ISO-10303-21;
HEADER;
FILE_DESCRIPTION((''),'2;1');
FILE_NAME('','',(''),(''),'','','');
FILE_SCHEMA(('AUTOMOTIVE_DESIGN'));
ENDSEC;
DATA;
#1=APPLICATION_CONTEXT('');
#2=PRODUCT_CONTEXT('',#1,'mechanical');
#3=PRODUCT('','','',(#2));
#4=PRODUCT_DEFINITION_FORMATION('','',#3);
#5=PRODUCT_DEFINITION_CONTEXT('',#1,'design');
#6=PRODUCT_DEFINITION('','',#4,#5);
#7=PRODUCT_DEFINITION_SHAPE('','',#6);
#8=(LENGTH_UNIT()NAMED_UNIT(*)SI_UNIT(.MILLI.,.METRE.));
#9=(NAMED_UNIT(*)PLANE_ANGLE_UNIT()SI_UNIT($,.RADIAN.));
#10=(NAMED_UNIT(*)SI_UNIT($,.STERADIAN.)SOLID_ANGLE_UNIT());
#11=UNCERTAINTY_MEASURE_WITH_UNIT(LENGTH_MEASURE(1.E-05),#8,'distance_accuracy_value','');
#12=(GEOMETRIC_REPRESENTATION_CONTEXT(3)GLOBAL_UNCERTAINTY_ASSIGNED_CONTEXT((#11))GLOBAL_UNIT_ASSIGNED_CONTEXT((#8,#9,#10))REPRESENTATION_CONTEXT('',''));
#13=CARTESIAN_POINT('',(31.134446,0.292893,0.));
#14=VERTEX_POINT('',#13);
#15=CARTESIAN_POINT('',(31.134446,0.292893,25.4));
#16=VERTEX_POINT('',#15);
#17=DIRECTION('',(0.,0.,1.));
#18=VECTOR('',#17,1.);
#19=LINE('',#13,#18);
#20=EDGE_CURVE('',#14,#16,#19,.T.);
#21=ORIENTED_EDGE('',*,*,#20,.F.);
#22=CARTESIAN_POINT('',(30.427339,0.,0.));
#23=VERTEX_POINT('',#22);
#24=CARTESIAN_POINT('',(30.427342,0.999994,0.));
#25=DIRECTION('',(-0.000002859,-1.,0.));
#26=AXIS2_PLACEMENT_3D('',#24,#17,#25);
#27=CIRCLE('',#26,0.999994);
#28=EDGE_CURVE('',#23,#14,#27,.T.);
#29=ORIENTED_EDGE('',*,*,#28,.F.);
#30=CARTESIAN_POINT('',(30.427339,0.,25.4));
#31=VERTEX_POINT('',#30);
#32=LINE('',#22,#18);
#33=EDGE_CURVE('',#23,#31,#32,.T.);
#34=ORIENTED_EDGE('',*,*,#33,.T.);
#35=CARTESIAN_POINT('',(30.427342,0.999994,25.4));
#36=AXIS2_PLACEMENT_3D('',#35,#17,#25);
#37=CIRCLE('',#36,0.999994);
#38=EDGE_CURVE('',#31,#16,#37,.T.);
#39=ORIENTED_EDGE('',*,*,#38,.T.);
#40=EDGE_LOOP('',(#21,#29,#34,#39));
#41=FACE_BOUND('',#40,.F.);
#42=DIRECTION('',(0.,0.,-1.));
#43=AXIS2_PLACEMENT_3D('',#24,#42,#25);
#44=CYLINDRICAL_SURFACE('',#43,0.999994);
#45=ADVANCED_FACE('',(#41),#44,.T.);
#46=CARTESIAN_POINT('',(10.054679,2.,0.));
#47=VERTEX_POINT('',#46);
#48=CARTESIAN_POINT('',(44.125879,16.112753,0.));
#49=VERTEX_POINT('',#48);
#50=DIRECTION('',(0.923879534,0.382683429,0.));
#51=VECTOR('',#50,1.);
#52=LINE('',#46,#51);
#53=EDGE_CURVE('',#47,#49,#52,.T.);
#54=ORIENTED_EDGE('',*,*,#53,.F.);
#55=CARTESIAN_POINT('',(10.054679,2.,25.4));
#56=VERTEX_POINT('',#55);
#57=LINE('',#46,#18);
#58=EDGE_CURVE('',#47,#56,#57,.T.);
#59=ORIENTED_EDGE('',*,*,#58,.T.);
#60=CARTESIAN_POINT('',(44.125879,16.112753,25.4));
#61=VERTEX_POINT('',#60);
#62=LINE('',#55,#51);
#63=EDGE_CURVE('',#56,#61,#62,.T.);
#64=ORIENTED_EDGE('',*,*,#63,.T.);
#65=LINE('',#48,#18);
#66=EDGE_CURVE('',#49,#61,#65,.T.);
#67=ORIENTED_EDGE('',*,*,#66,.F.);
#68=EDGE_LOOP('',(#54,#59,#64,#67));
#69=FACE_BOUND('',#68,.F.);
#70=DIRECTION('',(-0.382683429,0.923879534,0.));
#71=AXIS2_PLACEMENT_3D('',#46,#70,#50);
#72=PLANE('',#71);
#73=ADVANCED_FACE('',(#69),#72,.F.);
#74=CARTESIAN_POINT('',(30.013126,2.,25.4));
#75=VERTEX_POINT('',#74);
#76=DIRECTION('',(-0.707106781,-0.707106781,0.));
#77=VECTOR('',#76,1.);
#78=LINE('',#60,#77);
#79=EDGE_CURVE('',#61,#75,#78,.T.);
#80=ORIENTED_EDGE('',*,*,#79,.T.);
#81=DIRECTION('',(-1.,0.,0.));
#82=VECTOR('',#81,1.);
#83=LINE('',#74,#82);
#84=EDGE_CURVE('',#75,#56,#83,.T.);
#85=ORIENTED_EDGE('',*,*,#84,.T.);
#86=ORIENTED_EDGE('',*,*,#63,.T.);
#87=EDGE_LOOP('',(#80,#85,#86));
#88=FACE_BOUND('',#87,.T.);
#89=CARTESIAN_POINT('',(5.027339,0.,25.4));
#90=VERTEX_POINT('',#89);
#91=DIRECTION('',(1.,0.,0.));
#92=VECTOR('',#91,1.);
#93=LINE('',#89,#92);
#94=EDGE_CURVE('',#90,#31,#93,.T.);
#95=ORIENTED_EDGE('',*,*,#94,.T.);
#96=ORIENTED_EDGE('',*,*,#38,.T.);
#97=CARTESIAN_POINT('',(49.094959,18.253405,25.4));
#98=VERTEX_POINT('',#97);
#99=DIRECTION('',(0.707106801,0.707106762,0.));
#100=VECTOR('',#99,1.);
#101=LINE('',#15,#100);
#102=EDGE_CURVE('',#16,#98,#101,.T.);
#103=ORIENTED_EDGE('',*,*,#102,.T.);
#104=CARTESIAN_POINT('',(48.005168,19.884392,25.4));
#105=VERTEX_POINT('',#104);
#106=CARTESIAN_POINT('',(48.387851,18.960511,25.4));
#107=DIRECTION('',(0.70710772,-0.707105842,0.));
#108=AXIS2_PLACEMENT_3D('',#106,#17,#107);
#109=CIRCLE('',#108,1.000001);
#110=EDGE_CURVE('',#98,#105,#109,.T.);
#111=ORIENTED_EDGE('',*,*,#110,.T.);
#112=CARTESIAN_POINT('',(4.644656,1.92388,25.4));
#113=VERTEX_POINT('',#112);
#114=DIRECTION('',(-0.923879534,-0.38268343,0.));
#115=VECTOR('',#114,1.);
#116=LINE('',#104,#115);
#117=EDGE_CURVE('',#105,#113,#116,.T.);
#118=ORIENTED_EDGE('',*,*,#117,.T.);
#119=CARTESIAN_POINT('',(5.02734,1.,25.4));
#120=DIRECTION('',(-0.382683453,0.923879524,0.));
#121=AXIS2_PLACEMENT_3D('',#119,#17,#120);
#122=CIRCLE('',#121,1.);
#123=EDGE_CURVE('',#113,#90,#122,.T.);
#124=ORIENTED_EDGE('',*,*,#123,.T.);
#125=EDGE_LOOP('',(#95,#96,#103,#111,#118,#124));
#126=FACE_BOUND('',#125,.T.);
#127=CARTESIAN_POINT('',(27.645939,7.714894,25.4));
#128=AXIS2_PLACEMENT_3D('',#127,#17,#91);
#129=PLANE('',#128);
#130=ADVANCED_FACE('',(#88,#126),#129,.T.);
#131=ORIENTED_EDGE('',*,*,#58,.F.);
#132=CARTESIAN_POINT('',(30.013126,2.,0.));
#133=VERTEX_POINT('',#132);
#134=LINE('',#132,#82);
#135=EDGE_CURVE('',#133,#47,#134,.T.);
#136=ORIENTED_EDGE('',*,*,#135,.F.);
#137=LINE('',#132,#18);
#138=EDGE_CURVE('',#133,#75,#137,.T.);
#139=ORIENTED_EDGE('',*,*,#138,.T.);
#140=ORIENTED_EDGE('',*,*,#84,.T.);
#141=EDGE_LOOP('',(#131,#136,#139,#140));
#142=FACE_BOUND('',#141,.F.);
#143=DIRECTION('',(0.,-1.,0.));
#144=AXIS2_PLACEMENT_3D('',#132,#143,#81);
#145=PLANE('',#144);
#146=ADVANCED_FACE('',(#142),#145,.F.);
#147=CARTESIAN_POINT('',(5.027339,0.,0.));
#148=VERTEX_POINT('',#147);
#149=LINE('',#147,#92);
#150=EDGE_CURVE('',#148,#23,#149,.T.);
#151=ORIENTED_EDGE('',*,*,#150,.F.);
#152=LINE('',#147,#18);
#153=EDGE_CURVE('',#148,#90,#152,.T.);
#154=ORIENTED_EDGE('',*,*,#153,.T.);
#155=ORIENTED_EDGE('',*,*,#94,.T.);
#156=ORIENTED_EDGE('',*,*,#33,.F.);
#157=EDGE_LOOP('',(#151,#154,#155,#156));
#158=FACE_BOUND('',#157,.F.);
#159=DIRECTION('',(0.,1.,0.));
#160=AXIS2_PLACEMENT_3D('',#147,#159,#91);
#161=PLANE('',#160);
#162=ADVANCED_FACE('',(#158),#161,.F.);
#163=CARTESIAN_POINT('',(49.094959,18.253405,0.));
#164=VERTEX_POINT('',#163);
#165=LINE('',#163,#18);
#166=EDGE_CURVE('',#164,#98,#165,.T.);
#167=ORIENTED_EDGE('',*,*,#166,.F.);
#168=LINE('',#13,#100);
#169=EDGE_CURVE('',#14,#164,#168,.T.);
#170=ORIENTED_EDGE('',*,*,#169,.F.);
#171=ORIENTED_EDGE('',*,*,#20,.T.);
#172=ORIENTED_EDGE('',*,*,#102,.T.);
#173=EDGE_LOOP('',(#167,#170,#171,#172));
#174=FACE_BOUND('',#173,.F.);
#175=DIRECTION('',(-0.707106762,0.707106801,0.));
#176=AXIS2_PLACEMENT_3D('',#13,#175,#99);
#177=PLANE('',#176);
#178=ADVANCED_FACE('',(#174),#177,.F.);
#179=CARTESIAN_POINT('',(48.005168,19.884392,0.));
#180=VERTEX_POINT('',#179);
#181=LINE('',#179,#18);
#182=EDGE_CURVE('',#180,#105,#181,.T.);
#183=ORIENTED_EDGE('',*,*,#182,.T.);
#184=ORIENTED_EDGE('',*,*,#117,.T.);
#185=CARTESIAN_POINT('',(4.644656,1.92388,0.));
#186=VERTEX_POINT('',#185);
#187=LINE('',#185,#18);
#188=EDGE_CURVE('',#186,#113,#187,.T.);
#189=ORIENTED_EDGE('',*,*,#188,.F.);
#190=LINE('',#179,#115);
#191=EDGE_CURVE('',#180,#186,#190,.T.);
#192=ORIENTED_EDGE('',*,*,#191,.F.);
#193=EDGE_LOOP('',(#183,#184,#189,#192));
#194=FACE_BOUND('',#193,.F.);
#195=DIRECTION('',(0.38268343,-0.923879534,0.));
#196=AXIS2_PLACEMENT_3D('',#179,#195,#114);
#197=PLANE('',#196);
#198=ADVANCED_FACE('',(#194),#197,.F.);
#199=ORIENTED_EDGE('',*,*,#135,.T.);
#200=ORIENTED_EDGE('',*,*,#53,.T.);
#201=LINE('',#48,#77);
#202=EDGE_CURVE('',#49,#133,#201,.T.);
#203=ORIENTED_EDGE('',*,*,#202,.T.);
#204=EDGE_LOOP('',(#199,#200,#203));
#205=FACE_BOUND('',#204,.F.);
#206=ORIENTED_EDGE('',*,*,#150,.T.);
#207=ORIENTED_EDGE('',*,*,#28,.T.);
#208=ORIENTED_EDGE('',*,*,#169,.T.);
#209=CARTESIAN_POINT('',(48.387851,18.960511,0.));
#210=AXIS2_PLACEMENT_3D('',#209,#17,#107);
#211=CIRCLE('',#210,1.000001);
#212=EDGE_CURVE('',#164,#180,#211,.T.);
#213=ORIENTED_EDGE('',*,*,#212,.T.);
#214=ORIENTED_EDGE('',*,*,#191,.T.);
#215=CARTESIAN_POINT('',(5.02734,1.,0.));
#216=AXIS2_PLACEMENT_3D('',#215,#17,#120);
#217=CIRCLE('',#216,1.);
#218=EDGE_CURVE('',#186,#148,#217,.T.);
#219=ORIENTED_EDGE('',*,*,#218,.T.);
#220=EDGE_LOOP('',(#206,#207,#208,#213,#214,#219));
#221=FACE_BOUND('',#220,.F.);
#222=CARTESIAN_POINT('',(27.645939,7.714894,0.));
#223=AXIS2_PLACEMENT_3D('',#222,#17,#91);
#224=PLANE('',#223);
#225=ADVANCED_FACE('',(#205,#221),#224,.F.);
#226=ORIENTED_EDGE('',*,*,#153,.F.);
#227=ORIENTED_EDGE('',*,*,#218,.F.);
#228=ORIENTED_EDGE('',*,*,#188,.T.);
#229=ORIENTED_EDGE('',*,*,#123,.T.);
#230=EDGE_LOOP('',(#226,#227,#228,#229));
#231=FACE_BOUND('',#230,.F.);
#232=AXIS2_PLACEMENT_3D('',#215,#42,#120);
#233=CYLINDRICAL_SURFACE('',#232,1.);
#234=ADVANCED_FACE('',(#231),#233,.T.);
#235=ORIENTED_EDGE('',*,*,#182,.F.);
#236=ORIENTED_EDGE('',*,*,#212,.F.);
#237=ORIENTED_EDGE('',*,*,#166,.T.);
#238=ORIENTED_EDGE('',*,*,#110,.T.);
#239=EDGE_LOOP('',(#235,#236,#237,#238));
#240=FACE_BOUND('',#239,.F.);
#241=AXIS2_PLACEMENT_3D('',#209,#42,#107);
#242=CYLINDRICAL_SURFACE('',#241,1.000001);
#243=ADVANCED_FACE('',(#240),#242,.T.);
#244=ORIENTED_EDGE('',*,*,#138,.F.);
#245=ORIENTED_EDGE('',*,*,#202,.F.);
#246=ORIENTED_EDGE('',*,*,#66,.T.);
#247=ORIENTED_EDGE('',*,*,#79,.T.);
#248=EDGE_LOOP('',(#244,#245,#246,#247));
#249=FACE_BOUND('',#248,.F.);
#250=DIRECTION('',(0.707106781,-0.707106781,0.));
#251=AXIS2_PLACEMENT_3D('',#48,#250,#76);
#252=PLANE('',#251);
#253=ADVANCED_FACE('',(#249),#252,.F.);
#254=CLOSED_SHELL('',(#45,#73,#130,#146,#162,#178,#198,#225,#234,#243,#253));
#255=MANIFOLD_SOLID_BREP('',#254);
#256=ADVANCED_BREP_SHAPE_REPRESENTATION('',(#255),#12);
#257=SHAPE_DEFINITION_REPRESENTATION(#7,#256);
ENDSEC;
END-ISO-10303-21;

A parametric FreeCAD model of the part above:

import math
import FreeCAD as App
import Part
import Sketcher
from FreeCAD import Vector
Q = App.Units.Quantity


def add_polygon(sketch, points):
    """Adds a closed chain of lines whose ends are joined by coincident constraints."""
    first, n = sketch.GeometryCount, len(points)
    for a, b in zip(points, points[1:] + points[:1]):
        sketch.addGeometry(Part.LineSegment(App.Vector(*a, 0), App.Vector(*b, 0)), False)
    for i in range(n):
        sketch.addConstraint(Sketcher.Constraint("Coincident", first + i, 2, first + (i + 1) % n, 1))

doc = App.newDocument("Part")
params = doc.addObject("Spreadsheet::Sheet", "Params")
for row, (alias, value) in enumerate([
    ("sketch1_radius", "1 mm"),
    ("sketch1_width", "25.4 mm"),
    ("sketch1_length", "25.4 mm"),
    ("pad1_length", "25.4 mm"),
], start=1):
    params.set(f"A{row}", alias)
    params.set(f"B{row}", "=" + value)
    params.setAlias(f"B{row}", alias)

body = doc.addObject("PartDesign::Body", "Body")

# Sketch on XY plane
sketch1 = body.newObject("Sketcher::SketchObject", "Sketch")
sketch1.AttachmentSupport = (doc.getObject("XY_Plane"), [""])
sketch1.MapMode = "FlatFace"
sketch1.addGeometry(Part.ArcOfCircle(Part.Circle(Vector(5, 1, 0), Vector(0, 0, 1), 1), math.radians(113), math.radians(270)), False)  # 0
sketch1.addGeometry(Part.LineSegment(Vector(5, 0, 0), Vector(30.4, 0, 0)), False)  # 1
sketch1.addGeometry(Part.ArcOfCircle(Part.Circle(Vector(30.4, 1, 0), Vector(0, 0, 1), 1), math.radians(-90), math.radians(-45)), False)  # 2
sketch1.addGeometry(Part.LineSegment(Vector(31.1, 0.3, 0), Vector(49.1, 18.3, 0)), False)  # 3
sketch1.addGeometry(Part.ArcOfCircle(Part.Circle(Vector(48.4, 19, 0), Vector(0, 0, 1), 1), math.radians(-45), math.radians(112)), False)  # 4
sketch1.addGeometry(Part.LineSegment(Vector(48, 19.9, 0), Vector(4.6, 1.9, 0)), False)  # 5
add_polygon(sketch1, [(30, 2), (10.1, 2), (44.1, 16.1)])  # lines 6-8
sketch1.addConstraint([
    Sketcher.Constraint("Tangent", 0, 2, 1, 1),
    Sketcher.Constraint("Coincident", 1, 2, 2, 1),
    Sketcher.Constraint("Coincident", 2, 2, 3, 1),
    Sketcher.Constraint("Tangent", 3, 2, 4, 1),
    Sketcher.Constraint("Tangent", 4, 2, 5, 1),
    Sketcher.Constraint("Tangent", 5, 2, 0, 1),
    Sketcher.Constraint("Horizontal", 1),
    Sketcher.Constraint("Horizontal", 6),
    Sketcher.Constraint("Equal", 0, 4),
    Sketcher.Constraint("PointOnObject", 0, 2, -1),
    Sketcher.Constraint("Parallel", 5, 7),
    Sketcher.Constraint("Parallel", 3, 8),
    Sketcher.Constraint("Radius", 0, Q("1 mm")),
    Sketcher.Constraint("Angle", 3, Q("44.999998 deg")),
    Sketcher.Constraint("DistanceX", 1, 1, 1, 2, Q("25.4 mm")),
    Sketcher.Constraint("DistanceY", -1, 1, 6, 2, Q("2 mm")),
    Sketcher.Constraint("Angle", 5, Q("-157.5 deg")),
    Sketcher.Constraint("Distance", 3, Q("25.4 mm")),
    Sketcher.Constraint("Radius", 2, Q("0.999994 mm")),
    Sketcher.Constraint("Distance", 7, Q("36.878401 mm")),
    Sketcher.Constraint("DistanceY", 2, 2, 2, 3, Q("0.707101 mm")),
    Sketcher.Constraint("DistanceX", -1, 1, 0, 3, Q("5.02734 mm")),
    Sketcher.Constraint("DistanceX", -1, 1, 6, 2, Q("10.054679 mm")),
])
sketch1.setExpression("Constraints[15]", "Params.sketch1_radius")
sketch1.setExpression("Constraints[17]", "Params.sketch1_width")
sketch1.setExpression("Constraints[20]", "Params.sketch1_length")
pad1 = body.newObject("PartDesign::Pad", "Pad")
pad1.Profile = sketch1
pad1.setExpression("Length", "Params.pad1_length")

doc.recompute()
